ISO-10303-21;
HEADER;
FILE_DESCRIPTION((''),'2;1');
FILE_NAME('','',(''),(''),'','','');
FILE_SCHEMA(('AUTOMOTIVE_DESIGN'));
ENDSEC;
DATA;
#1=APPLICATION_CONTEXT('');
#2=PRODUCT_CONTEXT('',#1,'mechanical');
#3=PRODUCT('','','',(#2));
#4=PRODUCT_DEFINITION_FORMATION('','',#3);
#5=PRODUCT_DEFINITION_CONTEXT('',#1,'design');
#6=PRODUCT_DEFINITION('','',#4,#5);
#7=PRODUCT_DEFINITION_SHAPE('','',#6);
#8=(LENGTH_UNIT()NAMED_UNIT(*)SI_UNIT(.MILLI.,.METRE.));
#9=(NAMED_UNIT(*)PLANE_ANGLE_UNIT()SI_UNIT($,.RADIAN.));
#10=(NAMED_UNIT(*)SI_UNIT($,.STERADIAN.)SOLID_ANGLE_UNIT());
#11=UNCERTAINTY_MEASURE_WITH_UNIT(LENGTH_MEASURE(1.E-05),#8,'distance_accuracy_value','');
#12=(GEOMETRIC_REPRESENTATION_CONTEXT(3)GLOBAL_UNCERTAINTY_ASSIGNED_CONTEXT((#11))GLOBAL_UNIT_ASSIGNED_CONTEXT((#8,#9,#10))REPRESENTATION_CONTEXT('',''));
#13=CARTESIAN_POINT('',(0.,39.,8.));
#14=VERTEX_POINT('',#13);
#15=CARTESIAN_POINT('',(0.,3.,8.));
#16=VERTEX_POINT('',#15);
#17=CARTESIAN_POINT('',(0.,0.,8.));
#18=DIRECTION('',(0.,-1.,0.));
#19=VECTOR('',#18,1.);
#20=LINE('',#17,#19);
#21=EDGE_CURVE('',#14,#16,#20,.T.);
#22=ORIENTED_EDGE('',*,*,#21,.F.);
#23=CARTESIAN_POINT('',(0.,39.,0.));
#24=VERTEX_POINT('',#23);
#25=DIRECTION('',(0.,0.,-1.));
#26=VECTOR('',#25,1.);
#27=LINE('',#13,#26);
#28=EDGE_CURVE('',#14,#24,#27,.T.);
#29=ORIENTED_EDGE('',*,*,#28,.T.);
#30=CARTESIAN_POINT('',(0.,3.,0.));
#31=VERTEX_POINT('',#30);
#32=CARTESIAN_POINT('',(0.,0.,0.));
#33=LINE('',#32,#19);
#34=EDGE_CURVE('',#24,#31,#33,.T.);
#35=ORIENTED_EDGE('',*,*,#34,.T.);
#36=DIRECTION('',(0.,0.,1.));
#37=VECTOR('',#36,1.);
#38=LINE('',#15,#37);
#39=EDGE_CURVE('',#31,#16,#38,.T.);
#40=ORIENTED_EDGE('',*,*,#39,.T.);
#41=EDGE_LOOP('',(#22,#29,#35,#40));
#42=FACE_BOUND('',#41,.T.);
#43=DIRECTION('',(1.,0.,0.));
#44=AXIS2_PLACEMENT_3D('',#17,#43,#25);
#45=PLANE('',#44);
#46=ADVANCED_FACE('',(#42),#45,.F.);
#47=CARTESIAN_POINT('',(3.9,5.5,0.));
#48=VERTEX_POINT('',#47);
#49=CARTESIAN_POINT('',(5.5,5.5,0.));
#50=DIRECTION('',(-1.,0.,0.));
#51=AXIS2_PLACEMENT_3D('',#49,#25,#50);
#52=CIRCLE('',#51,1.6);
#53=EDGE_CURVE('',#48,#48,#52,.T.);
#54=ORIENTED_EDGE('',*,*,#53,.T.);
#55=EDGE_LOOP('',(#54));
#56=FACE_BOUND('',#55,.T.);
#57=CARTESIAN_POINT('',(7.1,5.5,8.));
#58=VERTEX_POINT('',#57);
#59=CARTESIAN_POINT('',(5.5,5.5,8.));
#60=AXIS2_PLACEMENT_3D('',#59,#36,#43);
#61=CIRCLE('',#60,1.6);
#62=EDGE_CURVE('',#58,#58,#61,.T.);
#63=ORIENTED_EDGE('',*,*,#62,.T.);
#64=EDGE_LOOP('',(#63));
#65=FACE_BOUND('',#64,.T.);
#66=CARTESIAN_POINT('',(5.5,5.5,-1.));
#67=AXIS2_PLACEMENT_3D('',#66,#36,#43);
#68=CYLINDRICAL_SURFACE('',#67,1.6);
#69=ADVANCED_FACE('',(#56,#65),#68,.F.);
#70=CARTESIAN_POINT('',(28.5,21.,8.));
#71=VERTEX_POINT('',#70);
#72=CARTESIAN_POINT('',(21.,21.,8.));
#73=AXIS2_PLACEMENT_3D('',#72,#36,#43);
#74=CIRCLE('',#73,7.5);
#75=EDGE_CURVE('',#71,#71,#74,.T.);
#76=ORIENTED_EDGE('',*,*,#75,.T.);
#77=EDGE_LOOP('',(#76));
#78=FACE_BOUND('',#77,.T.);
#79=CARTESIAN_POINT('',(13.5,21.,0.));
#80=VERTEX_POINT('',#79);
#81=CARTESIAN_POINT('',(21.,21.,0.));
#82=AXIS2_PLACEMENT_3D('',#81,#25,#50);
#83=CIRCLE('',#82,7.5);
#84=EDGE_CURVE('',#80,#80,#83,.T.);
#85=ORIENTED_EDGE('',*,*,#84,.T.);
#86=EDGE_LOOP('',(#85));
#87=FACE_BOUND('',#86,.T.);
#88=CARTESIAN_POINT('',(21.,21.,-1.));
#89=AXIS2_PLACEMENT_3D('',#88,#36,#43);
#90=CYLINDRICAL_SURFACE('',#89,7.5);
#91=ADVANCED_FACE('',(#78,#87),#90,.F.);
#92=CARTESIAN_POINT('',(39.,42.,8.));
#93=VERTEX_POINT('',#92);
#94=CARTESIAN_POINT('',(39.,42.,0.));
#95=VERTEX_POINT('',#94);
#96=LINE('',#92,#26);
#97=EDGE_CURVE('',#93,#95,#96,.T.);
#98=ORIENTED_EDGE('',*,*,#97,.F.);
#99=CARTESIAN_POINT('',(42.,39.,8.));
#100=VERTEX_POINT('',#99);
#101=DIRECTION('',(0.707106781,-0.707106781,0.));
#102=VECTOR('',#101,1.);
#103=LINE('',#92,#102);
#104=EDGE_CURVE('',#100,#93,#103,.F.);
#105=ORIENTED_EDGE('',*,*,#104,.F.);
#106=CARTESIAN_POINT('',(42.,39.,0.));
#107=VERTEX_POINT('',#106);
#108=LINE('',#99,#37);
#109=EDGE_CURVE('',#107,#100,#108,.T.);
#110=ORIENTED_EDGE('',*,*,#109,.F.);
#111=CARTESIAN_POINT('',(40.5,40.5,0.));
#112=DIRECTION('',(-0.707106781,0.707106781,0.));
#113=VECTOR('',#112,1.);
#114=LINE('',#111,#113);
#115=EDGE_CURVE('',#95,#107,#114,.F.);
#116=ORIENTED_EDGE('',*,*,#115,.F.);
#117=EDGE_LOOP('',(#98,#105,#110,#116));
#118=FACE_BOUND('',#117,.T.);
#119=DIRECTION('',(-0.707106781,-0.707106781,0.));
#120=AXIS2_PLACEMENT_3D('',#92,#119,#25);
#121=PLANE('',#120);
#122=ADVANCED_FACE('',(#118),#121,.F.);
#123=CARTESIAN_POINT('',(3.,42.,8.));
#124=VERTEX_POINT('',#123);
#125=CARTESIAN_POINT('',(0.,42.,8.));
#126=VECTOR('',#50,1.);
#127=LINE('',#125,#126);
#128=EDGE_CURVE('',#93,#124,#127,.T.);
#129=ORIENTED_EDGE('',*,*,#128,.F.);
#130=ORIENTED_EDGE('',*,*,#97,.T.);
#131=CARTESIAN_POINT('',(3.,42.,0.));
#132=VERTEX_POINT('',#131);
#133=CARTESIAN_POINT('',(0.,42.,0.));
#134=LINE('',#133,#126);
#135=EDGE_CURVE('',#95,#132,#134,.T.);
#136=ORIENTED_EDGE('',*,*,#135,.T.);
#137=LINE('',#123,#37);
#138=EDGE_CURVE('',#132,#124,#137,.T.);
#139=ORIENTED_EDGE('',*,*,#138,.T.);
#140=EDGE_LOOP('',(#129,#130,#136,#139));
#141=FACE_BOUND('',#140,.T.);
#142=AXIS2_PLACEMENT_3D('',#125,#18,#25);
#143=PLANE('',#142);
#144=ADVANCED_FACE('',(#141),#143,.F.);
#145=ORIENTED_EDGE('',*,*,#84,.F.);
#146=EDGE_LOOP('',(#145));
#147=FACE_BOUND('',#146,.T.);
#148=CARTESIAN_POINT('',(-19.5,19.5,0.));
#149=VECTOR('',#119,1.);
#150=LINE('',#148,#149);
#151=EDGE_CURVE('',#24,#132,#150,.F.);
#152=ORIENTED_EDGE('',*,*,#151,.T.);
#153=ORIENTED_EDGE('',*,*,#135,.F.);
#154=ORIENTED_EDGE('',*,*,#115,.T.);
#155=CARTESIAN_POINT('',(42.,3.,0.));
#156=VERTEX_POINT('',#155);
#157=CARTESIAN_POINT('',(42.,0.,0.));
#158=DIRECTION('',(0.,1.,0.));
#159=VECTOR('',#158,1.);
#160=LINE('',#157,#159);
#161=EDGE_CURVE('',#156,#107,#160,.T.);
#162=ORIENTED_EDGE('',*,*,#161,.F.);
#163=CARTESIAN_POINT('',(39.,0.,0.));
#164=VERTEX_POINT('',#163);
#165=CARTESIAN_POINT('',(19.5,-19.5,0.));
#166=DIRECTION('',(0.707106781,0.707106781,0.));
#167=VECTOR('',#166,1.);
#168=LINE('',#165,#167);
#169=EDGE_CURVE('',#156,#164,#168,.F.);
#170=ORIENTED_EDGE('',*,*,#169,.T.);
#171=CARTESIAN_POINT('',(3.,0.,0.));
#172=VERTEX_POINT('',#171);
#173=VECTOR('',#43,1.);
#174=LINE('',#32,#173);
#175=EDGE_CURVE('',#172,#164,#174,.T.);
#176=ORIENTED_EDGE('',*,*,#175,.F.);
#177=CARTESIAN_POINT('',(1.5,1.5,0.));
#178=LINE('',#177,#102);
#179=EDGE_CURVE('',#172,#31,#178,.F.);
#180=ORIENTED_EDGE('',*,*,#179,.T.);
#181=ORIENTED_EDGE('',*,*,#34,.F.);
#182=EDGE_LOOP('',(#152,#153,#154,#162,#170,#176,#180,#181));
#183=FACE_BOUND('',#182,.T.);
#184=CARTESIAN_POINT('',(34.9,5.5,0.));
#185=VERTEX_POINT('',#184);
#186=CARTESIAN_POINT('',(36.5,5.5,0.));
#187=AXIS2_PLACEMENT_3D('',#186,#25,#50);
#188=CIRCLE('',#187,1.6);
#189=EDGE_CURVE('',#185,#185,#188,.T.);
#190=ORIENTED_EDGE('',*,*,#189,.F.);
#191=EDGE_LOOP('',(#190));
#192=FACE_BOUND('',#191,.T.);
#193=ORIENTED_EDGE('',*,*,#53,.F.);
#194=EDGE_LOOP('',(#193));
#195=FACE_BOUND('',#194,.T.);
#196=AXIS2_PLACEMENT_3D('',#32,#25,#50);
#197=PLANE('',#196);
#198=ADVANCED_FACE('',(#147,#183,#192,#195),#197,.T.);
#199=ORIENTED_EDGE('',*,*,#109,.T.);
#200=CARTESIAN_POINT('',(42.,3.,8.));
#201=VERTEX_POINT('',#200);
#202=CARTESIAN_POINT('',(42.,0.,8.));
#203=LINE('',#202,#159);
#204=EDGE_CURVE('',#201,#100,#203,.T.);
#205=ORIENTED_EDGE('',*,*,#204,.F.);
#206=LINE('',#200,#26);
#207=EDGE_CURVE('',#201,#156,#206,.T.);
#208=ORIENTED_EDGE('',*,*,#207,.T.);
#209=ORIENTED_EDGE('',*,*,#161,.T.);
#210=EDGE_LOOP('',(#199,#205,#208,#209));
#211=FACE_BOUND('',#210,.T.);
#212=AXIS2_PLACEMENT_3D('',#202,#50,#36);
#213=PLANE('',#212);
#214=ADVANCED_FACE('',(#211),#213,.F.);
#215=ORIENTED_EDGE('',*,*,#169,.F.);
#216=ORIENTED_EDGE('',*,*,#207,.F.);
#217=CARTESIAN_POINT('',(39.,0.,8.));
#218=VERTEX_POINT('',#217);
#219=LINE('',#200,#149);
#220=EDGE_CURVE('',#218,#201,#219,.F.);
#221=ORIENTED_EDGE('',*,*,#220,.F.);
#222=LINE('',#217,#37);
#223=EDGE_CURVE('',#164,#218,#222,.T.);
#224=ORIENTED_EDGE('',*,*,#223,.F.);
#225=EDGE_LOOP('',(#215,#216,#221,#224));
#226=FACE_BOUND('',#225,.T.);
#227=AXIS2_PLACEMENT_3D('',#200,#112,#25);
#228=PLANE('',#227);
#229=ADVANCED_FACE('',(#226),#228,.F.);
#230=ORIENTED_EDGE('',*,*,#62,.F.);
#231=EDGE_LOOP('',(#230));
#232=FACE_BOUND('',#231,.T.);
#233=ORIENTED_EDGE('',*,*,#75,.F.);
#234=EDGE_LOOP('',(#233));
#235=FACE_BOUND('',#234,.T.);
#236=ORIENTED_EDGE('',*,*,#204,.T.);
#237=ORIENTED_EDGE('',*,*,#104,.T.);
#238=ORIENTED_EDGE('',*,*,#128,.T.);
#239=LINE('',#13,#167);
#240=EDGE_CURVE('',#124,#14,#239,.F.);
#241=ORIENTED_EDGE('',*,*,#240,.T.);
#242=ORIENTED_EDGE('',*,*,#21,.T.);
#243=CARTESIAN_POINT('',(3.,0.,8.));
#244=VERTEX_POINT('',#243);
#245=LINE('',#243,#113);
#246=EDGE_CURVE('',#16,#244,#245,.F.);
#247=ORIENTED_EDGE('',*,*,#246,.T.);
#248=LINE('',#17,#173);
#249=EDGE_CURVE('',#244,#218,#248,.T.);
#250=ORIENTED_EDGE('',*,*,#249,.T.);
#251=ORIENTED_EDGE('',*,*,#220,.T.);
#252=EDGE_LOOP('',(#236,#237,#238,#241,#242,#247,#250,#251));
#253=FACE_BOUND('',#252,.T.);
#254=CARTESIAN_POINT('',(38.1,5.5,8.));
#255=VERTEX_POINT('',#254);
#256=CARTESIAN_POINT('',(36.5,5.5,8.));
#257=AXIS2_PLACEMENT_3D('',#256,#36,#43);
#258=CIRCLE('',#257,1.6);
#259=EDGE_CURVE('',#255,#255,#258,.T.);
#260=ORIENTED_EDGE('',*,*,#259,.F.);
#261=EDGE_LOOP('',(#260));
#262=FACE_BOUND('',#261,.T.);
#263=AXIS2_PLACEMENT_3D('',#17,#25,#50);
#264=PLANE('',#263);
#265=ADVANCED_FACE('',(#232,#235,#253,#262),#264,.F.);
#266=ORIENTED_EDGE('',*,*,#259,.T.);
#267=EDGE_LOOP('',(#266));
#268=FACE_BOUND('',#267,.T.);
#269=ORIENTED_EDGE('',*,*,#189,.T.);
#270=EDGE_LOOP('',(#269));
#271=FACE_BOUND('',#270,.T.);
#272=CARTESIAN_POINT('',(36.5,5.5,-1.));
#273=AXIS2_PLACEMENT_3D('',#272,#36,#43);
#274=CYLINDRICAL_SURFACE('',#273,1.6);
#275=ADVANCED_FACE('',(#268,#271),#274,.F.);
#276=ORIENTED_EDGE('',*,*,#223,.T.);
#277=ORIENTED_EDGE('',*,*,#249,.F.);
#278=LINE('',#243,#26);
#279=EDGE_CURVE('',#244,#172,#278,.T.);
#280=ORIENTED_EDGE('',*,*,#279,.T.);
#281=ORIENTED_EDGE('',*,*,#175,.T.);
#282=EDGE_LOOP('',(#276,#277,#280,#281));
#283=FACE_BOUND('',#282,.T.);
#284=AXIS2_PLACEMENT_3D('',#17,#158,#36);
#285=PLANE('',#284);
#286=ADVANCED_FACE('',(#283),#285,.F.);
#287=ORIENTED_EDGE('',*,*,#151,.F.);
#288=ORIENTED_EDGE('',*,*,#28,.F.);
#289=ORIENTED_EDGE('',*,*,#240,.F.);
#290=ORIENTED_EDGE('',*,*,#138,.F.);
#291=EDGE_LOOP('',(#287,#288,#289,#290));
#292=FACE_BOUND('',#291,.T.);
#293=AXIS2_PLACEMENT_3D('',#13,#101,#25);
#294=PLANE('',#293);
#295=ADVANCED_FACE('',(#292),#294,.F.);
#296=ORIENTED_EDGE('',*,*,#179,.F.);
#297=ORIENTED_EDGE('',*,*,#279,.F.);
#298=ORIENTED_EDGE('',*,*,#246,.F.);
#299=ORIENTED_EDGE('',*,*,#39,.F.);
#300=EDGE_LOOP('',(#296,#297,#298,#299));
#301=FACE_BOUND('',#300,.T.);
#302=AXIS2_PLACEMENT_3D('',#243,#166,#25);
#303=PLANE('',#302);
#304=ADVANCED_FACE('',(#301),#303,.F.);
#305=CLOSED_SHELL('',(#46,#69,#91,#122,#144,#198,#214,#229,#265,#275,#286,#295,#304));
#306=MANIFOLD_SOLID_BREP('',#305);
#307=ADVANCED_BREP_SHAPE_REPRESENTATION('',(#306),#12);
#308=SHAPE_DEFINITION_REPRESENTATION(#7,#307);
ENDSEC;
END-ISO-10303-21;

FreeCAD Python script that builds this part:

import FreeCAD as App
import Part
import Sketcher

V = App.Vector
Q = App.Units.Quantity


def edges_at(feature, points):
    """Names of the edges that pass closest to the given points."""
    edges = feature.Shape.Edges
    near = lambda p: min(range(len(edges)), key=lambda i: edges[i].distToShape(Part.Vertex(*p))[0])
    return sorted({f"Edge{near(p) + 1}" for p in points})

doc = App.newDocument("Part")
params = doc.addObject("Spreadsheet::Sheet", "Params")
for row, (alias, value) in enumerate([
    ("sketch1_width", "42 mm"),
    ("pad1_length", "8 mm"),
    ("sketch2_diameter", "15 mm"),
    ("sketch2_diameter2", "3.2 mm"),
    ("pocket1_length", "9 mm"),
    ("chamfer_size", "3 mm"),
], start=1):
    params.set(f"A{row}", alias)
    params.set(f"B{row}", "=" + value)
    params.setAlias(f"B{row}", alias)

body = doc.addObject("PartDesign::Body", "Body")

# Sketch on XY plane
sketch1 = doc.addObject("Sketcher::SketchObject", "Sketch")
body.addObject(sketch1)
sketch1.AttachmentSupport = (doc.XY_Plane, [""])
sketch1.MapMode = "FlatFace"
sketch1.addGeometry([
    Part.LineSegment(V(0, 42, 0), V(0, 0, 0)),
    Part.LineSegment(V(0, 0, 0), V(42, 0, 0)),
    Part.LineSegment(V(42, 0, 0), V(42, 42, 0)),
    Part.LineSegment(V(42, 42, 0), V(0, 42, 0)),
], False)
sketch1.addConstraint([
    Sketcher.Constraint("Coincident", 0, 2, 1, 1),
    Sketcher.Constraint("Coincident", 1, 2, 2, 1),
    Sketcher.Constraint("Coincident", 2, 2, 3, 1),
    Sketcher.Constraint("Coincident", 3, 2, 0, 1),
    Sketcher.Constraint("Vertical", 0),
    Sketcher.Constraint("Horizontal", 1),
    Sketcher.Constraint("Vertical", 2),
    Sketcher.Constraint("Horizontal", 3),
    Sketcher.Constraint("Coincident", 0, 2, -1, 1),
    Sketcher.Constraint("Equal", 3, 0),
    Sketcher.Constraint("DistanceX", 1, 1, 1, 2, Q("42 mm")),
])
sketch1.setExpression("Constraints[10]", "Params.sketch1_width")
pad1 = doc.addObject("PartDesign::Pad", "Pad")
body.addObject(pad1)
pad1.Profile = sketch1
pad1.setExpression("Length", "Params.pad1_length")

# Sketch on XY plane
sketch2 = doc.addObject("Sketcher::SketchObject", "Sketch001")
body.addObject(sketch2)
sketch2.AttachmentSupport = (doc.XY_Plane, [""])
sketch2.MapMode = "FlatFace"
sketch2.AttachmentOffset = App.Placement(V(0, 0, 8), App.Rotation())
sketch2.addGeometry([
    Part.Circle(V(36.5, 5.5, 0), V(0, 0, 1), 1.6),
    Part.Circle(V(5.5, 5.5, 0), V(0, 0, 1), 1.6),
    Part.Circle(V(21, 21, 0), V(0, 0, 1), 7.5),
], False)
sketch2.addConstraint([
    Sketcher.Constraint("Equal", 0, 1),
    Sketcher.Constraint("Horizontal", 0, 3, 1, 3),
    Sketcher.Constraint("Diameter", 2, Q("15 mm")),
    Sketcher.Constraint("Diameter", 0, Q("3.2 mm")),
    Sketcher.Constraint("DistanceX", -1, 1, 2, 3, Q("21 mm")),
    Sketcher.Constraint("DistanceY", -1, 1, 2, 3, Q("21 mm")),
    Sketcher.Constraint("DistanceX", 1, 3, 0, 3, Q("31 mm")),
    Sketcher.Constraint("DistanceX", -1, 1, 0, 3, Q("36.5 mm")),
    Sketcher.Constraint("DistanceY", -1, 1, 0, 3, Q("5.5 mm")),
])
sketch2.setExpression("Constraints[2]", "Params.sketch2_diameter")
sketch2.setExpression("Constraints[3]", "Params.sketch2_diameter2")
pocket1 = doc.addObject("PartDesign::Pocket", "Pocket")
body.addObject(pocket1)
pocket1.Profile = sketch2
pocket1.setExpression("Length", "Params.pocket1_length")
doc.recompute()

chamfer = doc.addObject("PartDesign::Chamfer", "Chamfer")
body.addObject(chamfer)
chamfer.Base = (pocket1, edges_at(pocket1, [
    (0, 42, 4),
    (42, 42, 4),
    (42, 0, 4),
    (0, 0, 4),
]))
chamfer.setExpression("Size", "Params.chamfer_size")

doc.recompute()
